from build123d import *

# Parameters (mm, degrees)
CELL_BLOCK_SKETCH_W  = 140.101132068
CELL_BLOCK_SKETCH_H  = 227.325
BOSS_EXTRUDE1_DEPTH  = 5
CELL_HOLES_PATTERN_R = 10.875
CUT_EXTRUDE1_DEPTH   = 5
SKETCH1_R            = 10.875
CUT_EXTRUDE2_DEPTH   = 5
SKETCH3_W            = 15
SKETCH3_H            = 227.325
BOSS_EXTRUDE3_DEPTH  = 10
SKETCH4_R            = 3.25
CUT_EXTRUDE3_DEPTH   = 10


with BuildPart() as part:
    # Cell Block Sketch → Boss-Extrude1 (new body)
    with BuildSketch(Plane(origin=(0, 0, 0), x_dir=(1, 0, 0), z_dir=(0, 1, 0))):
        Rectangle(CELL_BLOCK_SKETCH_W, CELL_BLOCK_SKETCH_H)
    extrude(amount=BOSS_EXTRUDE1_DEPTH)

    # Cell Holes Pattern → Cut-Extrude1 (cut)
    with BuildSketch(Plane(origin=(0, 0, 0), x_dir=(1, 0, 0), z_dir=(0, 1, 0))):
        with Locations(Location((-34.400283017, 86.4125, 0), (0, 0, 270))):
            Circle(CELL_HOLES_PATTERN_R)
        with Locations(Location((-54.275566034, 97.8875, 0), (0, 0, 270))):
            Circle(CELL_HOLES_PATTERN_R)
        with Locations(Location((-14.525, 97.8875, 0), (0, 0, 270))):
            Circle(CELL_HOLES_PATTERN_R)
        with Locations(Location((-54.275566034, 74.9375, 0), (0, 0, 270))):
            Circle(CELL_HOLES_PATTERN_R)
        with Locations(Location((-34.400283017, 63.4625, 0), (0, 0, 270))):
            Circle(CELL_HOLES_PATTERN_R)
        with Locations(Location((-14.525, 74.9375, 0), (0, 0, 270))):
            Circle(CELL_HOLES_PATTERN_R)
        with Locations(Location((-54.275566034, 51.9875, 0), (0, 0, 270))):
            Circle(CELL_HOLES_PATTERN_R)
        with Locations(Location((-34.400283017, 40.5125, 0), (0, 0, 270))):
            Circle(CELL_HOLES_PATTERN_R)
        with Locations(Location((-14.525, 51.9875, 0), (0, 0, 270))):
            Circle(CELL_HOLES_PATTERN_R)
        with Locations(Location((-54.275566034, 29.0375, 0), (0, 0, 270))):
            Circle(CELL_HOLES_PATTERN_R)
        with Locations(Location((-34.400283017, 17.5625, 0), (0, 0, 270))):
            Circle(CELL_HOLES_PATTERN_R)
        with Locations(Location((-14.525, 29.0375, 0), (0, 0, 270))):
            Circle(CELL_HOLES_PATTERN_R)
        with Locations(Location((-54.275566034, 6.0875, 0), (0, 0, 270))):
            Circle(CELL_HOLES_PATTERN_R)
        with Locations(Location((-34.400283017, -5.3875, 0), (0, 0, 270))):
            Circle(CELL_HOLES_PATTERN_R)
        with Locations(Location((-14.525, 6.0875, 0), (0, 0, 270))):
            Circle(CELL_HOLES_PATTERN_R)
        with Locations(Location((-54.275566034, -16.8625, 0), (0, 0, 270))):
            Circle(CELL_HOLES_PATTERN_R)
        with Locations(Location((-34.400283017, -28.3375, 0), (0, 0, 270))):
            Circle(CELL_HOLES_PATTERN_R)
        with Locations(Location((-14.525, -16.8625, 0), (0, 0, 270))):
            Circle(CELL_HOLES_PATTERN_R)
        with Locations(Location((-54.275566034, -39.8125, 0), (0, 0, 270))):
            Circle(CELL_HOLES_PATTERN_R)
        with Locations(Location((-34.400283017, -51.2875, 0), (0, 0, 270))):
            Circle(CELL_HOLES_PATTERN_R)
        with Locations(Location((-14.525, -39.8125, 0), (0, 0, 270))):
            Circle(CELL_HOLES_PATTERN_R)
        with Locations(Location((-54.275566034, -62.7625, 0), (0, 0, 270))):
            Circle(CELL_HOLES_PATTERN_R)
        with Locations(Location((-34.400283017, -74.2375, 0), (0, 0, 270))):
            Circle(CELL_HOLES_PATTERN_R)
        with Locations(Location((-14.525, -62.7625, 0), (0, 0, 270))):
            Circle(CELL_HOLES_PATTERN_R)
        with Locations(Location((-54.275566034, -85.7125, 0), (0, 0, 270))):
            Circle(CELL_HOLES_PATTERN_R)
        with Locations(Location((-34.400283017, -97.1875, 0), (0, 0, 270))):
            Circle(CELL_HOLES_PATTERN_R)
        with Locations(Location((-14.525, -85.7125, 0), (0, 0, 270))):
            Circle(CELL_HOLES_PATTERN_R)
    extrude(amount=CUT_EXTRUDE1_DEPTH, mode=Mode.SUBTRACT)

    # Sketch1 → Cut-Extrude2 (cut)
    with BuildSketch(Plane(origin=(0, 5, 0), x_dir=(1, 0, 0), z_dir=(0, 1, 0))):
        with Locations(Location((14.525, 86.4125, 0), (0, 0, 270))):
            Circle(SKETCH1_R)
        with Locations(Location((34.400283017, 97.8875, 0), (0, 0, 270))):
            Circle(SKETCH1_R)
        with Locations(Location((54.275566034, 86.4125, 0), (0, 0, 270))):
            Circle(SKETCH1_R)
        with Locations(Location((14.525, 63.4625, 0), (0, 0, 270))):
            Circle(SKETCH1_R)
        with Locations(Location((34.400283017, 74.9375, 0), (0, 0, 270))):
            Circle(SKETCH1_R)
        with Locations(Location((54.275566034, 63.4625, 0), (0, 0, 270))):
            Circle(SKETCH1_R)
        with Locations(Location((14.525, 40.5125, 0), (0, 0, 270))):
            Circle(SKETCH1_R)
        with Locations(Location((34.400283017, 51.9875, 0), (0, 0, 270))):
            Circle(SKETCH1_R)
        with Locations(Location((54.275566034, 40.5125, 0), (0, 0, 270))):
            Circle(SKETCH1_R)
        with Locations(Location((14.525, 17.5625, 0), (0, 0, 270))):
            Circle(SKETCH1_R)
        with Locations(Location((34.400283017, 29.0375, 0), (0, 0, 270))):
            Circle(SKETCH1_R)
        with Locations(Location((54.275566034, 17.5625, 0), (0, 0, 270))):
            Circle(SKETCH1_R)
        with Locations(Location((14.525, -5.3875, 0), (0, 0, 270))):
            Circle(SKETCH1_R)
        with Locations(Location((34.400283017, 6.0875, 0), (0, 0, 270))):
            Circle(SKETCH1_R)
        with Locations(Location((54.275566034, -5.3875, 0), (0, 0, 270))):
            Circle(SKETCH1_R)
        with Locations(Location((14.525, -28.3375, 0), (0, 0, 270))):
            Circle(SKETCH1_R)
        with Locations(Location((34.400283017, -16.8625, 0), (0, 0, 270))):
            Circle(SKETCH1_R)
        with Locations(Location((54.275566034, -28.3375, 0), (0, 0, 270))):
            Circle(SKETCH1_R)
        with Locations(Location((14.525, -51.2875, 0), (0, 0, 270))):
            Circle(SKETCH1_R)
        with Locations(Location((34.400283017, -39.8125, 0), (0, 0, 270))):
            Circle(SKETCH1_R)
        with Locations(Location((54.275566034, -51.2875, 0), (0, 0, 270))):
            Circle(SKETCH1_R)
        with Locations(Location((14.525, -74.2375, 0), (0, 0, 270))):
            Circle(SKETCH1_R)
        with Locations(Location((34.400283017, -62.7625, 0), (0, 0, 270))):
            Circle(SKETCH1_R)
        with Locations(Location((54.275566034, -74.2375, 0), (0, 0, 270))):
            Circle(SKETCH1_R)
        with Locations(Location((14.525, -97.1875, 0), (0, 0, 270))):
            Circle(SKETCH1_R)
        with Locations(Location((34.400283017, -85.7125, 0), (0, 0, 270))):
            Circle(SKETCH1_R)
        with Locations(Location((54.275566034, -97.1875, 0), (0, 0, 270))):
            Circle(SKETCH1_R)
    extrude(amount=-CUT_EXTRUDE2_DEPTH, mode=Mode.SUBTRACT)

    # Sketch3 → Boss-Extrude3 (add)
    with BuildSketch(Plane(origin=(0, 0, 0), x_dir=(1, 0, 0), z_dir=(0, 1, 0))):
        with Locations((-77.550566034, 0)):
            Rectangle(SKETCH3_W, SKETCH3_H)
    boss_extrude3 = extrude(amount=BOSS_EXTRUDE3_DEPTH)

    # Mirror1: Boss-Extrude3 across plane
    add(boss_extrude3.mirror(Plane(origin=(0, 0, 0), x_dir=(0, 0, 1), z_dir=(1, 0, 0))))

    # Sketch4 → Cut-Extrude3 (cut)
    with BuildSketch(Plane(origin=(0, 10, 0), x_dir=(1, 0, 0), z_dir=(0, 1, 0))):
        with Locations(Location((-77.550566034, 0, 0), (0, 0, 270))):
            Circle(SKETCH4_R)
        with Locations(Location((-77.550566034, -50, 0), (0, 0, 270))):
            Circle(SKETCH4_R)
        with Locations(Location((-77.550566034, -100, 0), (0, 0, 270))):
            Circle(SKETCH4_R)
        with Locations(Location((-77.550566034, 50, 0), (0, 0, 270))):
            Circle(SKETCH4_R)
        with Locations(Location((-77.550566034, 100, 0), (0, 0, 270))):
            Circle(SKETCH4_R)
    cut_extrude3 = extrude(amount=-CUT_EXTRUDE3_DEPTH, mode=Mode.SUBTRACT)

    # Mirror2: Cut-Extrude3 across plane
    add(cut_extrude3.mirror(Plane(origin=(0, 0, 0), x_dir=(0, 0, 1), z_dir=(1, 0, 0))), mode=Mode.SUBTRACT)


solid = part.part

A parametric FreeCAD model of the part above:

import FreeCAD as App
import Part
import Sketcher

V = App.Vector


def add_polygon(sketch, points):
    """Adds a closed chain of lines whose ends are joined by coincident constraints."""
    first, n = sketch.GeometryCount, len(points)
    for a, b in zip(points, points[1:] + points[:1]):
        sketch.addGeometry(Part.LineSegment(App.Vector(*a, 0), App.Vector(*b, 0)), False)
    for i in range(n):
        sketch.addConstraint(Sketcher.Constraint("Coincident", first + i, 2, first + (i + 1) % n, 1))

doc = App.newDocument("Part")
body = doc.addObject("PartDesign::Body", "Body")

# Sketch on XZ plane
sketch1 = body.newObject("Sketcher::SketchObject", "Sketch")
sketch1.AttachmentSupport = (doc.getObject("XZ_Plane"), [""])
sketch1.MapMode = "FlatFace"
add_polygon(sketch1, [(-70, -114), (-70, 114), (70, 114), (70, -114)])  # lines 0-3
sketch1.addConstraint([
    Sketcher.Constraint("Vertical", 0),
    Sketcher.Constraint("Horizontal", 1),
    Sketcher.Constraint("Vertical", 2),
    Sketcher.Constraint("Horizontal", 3),
    Sketcher.Constraint("Symmetric", 0, 2, 2, 2, -1, 1),
    Sketcher.Constraint("DistanceY", 0, 1, 0, 2, 227.325),
    Sketcher.Constraint("DistanceX", 1, 1, 1, 2, 140.101132),
])
pad1 = body.newObject("PartDesign::Pad", "Pad")
pad1.Profile = sketch1
pad1.Length = 5
pad1.Reversed = True

# Sketch on XZ plane
sketch2 = body.newObject("Sketcher::SketchObject", "Sketch001")
sketch2.AttachmentSupport = (doc.getObject("XZ_Plane"), [""])
sketch2.MapMode = "FlatFace"
sketch2.addGeometry([
    Part.Circle(V(-34, -86, 0), V(0, 0, 1), 11),  # 0
    Part.Circle(V(-54, -98, 0), V(0, 0, 1), 11),  # 1
    Part.Circle(V(-15, -98, 0), V(0, 0, 1), 11),  # 2
    Part.Circle(V(-54, -75, 0), V(0, 0, 1), 11),  # 3
    Part.Circle(V(-34, -63, 0), V(0, 0, 1), 11),  # 4
    Part.Circle(V(-15, -75, 0), V(0, 0, 1), 11),  # 5
    Part.Circle(V(-54, -52, 0), V(0, 0, 1), 11),  # 6
    Part.Circle(V(-34, -41, 0), V(0, 0, 1), 11),  # 7
    Part.Circle(V(-15, -52, 0), V(0, 0, 1), 11),  # 8
    Part.Circle(V(-54, -29, 0), V(0, 0, 1), 11),  # 9
    Part.Circle(V(-34, -18, 0), V(0, 0, 1), 11),  # 10
    Part.Circle(V(-15, -29, 0), V(0, 0, 1), 11),  # 11
    Part.Circle(V(-54, -6, 0), V(0, 0, 1), 11),  # 12
    Part.Circle(V(-34, 5, 0), V(0, 0, 1), 11),  # 13
    Part.Circle(V(-15, -6, 0), V(0, 0, 1), 11),  # 14
    Part.Circle(V(-54, 17, 0), V(0, 0, 1), 11),  # 15
    Part.Circle(V(-34, 28, 0), V(0, 0, 1), 11),  # 16
    Part.Circle(V(-15, 17, 0), V(0, 0, 1), 11),  # 17
    Part.Circle(V(-54, 40, 0), V(0, 0, 1), 11),  # 18
    Part.Circle(V(-34, 51, 0), V(0, 0, 1), 11),  # 19
    Part.Circle(V(-15, 40, 0), V(0, 0, 1), 11),  # 20
    Part.Circle(V(-54, 63, 0), V(0, 0, 1), 11),  # 21
    Part.Circle(V(-34, 74, 0), V(0, 0, 1), 11),  # 22
    Part.Circle(V(-15, 63, 0), V(0, 0, 1), 11),  # 23
    Part.Circle(V(-54, 86, 0), V(0, 0, 1), 11),  # 24
    Part.Circle(V(-34, 97, 0), V(0, 0, 1), 11),  # 25
    Part.Circle(V(-15, 86, 0), V(0, 0, 1), 11),  # 26
], False)
sketch2.addConstraint([
    Sketcher.Constraint("Equal", 0, 1),
    Sketcher.Constraint("Equal", 1, 2),
    Sketcher.Constraint("Equal", 2, 3),
    Sketcher.Constraint("Equal", 3, 4),
    Sketcher.Constraint("Equal", 4, 5),
    Sketcher.Constraint("Equal", 5, 6),
    Sketcher.Constraint("Equal", 6, 7),
    Sketcher.Constraint("Equal", 7, 8),
    Sketcher.Constraint("Equal", 8, 9),
    Sketcher.Constraint("Equal", 9, 10),
    Sketcher.Constraint("Equal", 10, 11),
    Sketcher.Constraint("Equal", 11, 12),
    Sketcher.Constraint("Equal", 12, 13),
    Sketcher.Constraint("Equal", 13, 14),
    Sketcher.Constraint("Equal", 14, 15),
    Sketcher.Constraint("Equal", 15, 16),
    Sketcher.Constraint("Equal", 16, 17),
    Sketcher.Constraint("Equal", 17, 18),
    Sketcher.Constraint("Equal", 18, 19),
    Sketcher.Constraint("Equal", 19, 20),
    Sketcher.Constraint("Equal", 20, 21),
    Sketcher.Constraint("Equal", 21, 22),
    Sketcher.Constraint("Equal", 22, 23),
    Sketcher.Constraint("Equal", 23, 24),
    Sketcher.Constraint("Equal", 24, 25),
    Sketcher.Constraint("Equal", 25, 26),
    Sketcher.Constraint("Horizontal", 1, 3, 2, 3),
    Sketcher.Constraint("Horizontal", 3, 3, 5, 3),
    Sketcher.Constraint("Horizontal", 6, 3, 8, 3),
    Sketcher.Constraint("Horizontal", 9, 3, 11, 3),
    Sketcher.Constraint("Horizontal", 12, 3, 14, 3),
    Sketcher.Constraint("Horizontal", 15, 3, 17, 3),
    Sketcher.Constraint("Horizontal", 18, 3, 20, 3),
    Sketcher.Constraint("Horizontal", 21, 3, 23, 3),
    Sketcher.Constraint("Horizontal", 24, 3, 26, 3),
    Sketcher.Constraint("Vertical", 1, 3, 3, 3),
    Sketcher.Constraint("Vertical", 0, 3, 4, 3),
    Sketcher.Constraint("Vertical", 2, 3, 5, 3),
    Sketcher.Constraint("Vertical", 3, 3, 6, 3),
    Sketcher.Constraint("Vertical", 4, 3, 7, 3),
    Sketcher.Constraint("Vertical", 5, 3, 8, 3),
    Sketcher.Constraint("Vertical", 6, 3, 9, 3),
    Sketcher.Constraint("Vertical", 7, 3, 10, 3),
    Sketcher.Constraint("Vertical", 8, 3, 11, 3),
    Sketcher.Constraint("Vertical", 9, 3, 12, 3),
    Sketcher.Constraint("Vertical", 10, 3, 13, 3),
    Sketcher.Constraint("Vertical", 11, 3, 14, 3),
    Sketcher.Constraint("Vertical", 12, 3, 15, 3),
    Sketcher.Constraint("Vertical", 13, 3, 16, 3),
    Sketcher.Constraint("Vertical", 14, 3, 17, 3),
    Sketcher.Constraint("Vertical", 15, 3, 18, 3),
    Sketcher.Constraint("Vertical", 16, 3, 19, 3),
    Sketcher.Constraint("Vertical", 17, 3, 20, 3),
    Sketcher.Constraint("Vertical", 18, 3, 21, 3),
    Sketcher.Constraint("Vertical", 19, 3, 22, 3),
    Sketcher.Constraint("Vertical", 20, 3, 23, 3),
    Sketcher.Constraint("Vertical", 21, 3, 24, 3),
    Sketcher.Constraint("Vertical", 22, 3, 25, 3),
    Sketcher.Constraint("Vertical", 23, 3, 26, 3),
    Sketcher.Constraint("Diameter", 0, 21.75),
    Sketcher.Constraint("DistanceY", 1, 3, 6, 3, 45.9),
    Sketcher.Constraint("DistanceY", 0, 3, 7, 3, 45.9),
    Sketcher.Constraint("DistanceY", 3, 3, 9, 3, 45.9),
    Sketcher.Constraint("DistanceY", 4, 3, 10, 3, 45.9),
    Sketcher.Constraint("DistanceY", 6, 3, 12, 3, 45.9),
    Sketcher.Constraint("DistanceY", 7, 3, 13, 3, 45.9),
    Sketcher.Constraint("DistanceY", 9, 3, 15, 3, 45.9),
    Sketcher.Constraint("DistanceY", 10, 3, 16, 3, 45.9),
    Sketcher.Constraint("DistanceY", 12, 3, 18, 3, 45.9),
    Sketcher.Constraint("DistanceY", 13, 3, 19, 3, 45.9),
    Sketcher.Constraint("DistanceY", 15, 3, 21, 3, 45.9),
    Sketcher.Constraint("DistanceY", 16, 3, 22, 3, 45.9),
    Sketcher.Constraint("DistanceY", 18, 3, 24, 3, 45.9),
    Sketcher.Constraint("DistanceY", 19, 3, 25, 3, 45.9),
    Sketcher.Constraint("DistanceY", 1, 3, 3, 3, 22.95),
    Sketcher.Constraint("DistanceY", 0, 3, 4, 3, 22.95),
    Sketcher.Constraint("DistanceX", 2, 3, -1, 1, 14.525),
    Sketcher.Constraint("DistanceY", 1, 3, 0, 3, 11.475),
    Sketcher.Constraint("DistanceY", 0, 3, -1, 1, 86.4125),
    Sketcher.Constraint("DistanceX", 0, 3, -1, 1, 34.400283),
    Sketcher.Constraint("DistanceX", 1, 3, -1, 1, 54.275566),
])
pocket1 = body.newObject("PartDesign::Pocket", "Pocket")
pocket1.Profile = sketch2
pocket1.Length = 5

# Sketch on XZ plane
sketch3 = body.newObject("Sketcher::SketchObject", "Sketch002")
sketch3.AttachmentSupport = (doc.getObject("XZ_Plane"), [""])
sketch3.MapMode = "FlatFace"
sketch3.AttachmentOffset = App.Placement(V(0, 0, -5), App.Rotation())
sketch3.addGeometry([
    Part.Circle(V(15, -86, 0), V(0, 0, 1), 11),  # 0
    Part.Circle(V(34, -98, 0), V(0, 0, 1), 11),  # 1
    Part.Circle(V(54, -86, 0), V(0, 0, 1), 11),  # 2
    Part.Circle(V(15, -63, 0), V(0, 0, 1), 11),  # 3
    Part.Circle(V(34, -75, 0), V(0, 0, 1), 11),  # 4
    Part.Circle(V(54, -63, 0), V(0, 0, 1), 11),  # 5
    Part.Circle(V(15, -41, 0), V(0, 0, 1), 11),  # 6
    Part.Circle(V(34, -52, 0), V(0, 0, 1), 11),  # 7
    Part.Circle(V(54, -41, 0), V(0, 0, 1), 11),  # 8
    Part.Circle(V(15, -18, 0), V(0, 0, 1), 11),  # 9
    Part.Circle(V(34, -29, 0), V(0, 0, 1), 11),  # 10
    Part.Circle(V(54, -18, 0), V(0, 0, 1), 11),  # 11
    Part.Circle(V(15, 5, 0), V(0, 0, 1), 11),  # 12
    Part.Circle(V(34, -6, 0), V(0, 0, 1), 11),  # 13
    Part.Circle(V(54, 5, 0), V(0, 0, 1), 11),  # 14
    Part.Circle(V(15, 28, 0), V(0, 0, 1), 11),  # 15
    Part.Circle(V(34, 17, 0), V(0, 0, 1), 11),  # 16
    Part.Circle(V(54, 28, 0), V(0, 0, 1), 11),  # 17
    Part.Circle(V(15, 51, 0), V(0, 0, 1), 11),  # 18
    Part.Circle(V(34, 40, 0), V(0, 0, 1), 11),  # 19
    Part.Circle(V(54, 51, 0), V(0, 0, 1), 11),  # 20
    Part.Circle(V(15, 74, 0), V(0, 0, 1), 11),  # 21
    Part.Circle(V(34, 63, 0), V(0, 0, 1), 11),  # 22
    Part.Circle(V(54, 74, 0), V(0, 0, 1), 11),  # 23
    Part.Circle(V(15, 97, 0), V(0, 0, 1), 11),  # 24
    Part.Circle(V(34, 86, 0), V(0, 0, 1), 11),  # 25
    Part.Circle(V(54, 97, 0), V(0, 0, 1), 11),  # 26
], False)
sketch3.addConstraint([
    Sketcher.Constraint("Equal", 0, 1),
    Sketcher.Constraint("Equal", 1, 2),
    Sketcher.Constraint("Equal", 2, 3),
    Sketcher.Constraint("Equal", 3, 4),
    Sketcher.Constraint("Equal", 4, 5),
    Sketcher.Constraint("Equal", 5, 6),
    Sketcher.Constraint("Equal", 6, 7),
    Sketcher.Constraint("Equal", 7, 8),
    Sketcher.Constraint("Equal", 8, 9),
    Sketcher.Constraint("Equal", 9, 10),
    Sketcher.Constraint("Equal", 10, 11),
    Sketcher.Constraint("Equal", 11, 12),
    Sketcher.Constraint("Equal", 12, 13),
    Sketcher.Constraint("Equal", 13, 14),
    Sketcher.Constraint("Equal", 14, 15),
    Sketcher.Constraint("Equal", 15, 16),
    Sketcher.Constraint("Equal", 16, 17),
    Sketcher.Constraint("Equal", 17, 18),
    Sketcher.Constraint("Equal", 18, 19),
    Sketcher.Constraint("Equal", 19, 20),
    Sketcher.Constraint("Equal", 20, 21),
    Sketcher.Constraint("Equal", 21, 22),
    Sketcher.Constraint("Equal", 22, 23),
    Sketcher.Constraint("Equal", 23, 24),
    Sketcher.Constraint("Equal", 24, 25),
    Sketcher.Constraint("Equal", 25, 26),
    Sketcher.Constraint("Horizontal", 0, 3, 2, 3),
    Sketcher.Constraint("Horizontal", 3, 3, 5, 3),
    Sketcher.Constraint("Horizontal", 6, 3, 8, 3),
    Sketcher.Constraint("Horizontal", 9, 3, 11, 3),
    Sketcher.Constraint("Horizontal", 12, 3, 14, 3),
    Sketcher.Constraint("Horizontal", 15, 3, 17, 3),
    Sketcher.Constraint("Horizontal", 18, 3, 20, 3),
    Sketcher.Constraint("Horizontal", 21, 3, 23, 3),
    Sketcher.Constraint("Horizontal", 24, 3, 26, 3),
    Sketcher.Constraint("Vertical", 0, 3, 3, 3),
    Sketcher.Constraint("Vertical", 1, 3, 4, 3),
    Sketcher.Constraint("Vertical", 2, 3, 5, 3),
    Sketcher.Constraint("Vertical", 3, 3, 6, 3),
    Sketcher.Constraint("Vertical", 4, 3, 7, 3),
    Sketcher.Constraint("Vertical", 5, 3, 8, 3),
    Sketcher.Constraint("Vertical", 6, 3, 9, 3),
    Sketcher.Constraint("Vertical", 7, 3, 10, 3),
    Sketcher.Constraint("Vertical", 8, 3, 11, 3),
    Sketcher.Constraint("Vertical", 9, 3, 12, 3),
    Sketcher.Constraint("Vertical", 10, 3, 13, 3),
    Sketcher.Constraint("Vertical", 11, 3, 14, 3),
    Sketcher.Constraint("Vertical", 12, 3, 15, 3),
    Sketcher.Constraint("Vertical", 13, 3, 16, 3),
    Sketcher.Constraint("Vertical", 14, 3, 17, 3),
    Sketcher.Constraint("Vertical", 15, 3, 18, 3),
    Sketcher.Constraint("Vertical", 16, 3, 19, 3),
    Sketcher.Constraint("Vertical", 17, 3, 20, 3),
    Sketcher.Constraint("Vertical", 18, 3, 21, 3),
    Sketcher.Constraint("Vertical", 19, 3, 22, 3),
    Sketcher.Constraint("Vertical", 20, 3, 23, 3),
    Sketcher.Constraint("Vertical", 21, 3, 24, 3),
    Sketcher.Constraint("Vertical", 22, 3, 25, 3),
    Sketcher.Constraint("Vertical", 23, 3, 26, 3),
    Sketcher.Constraint("Diameter", 0, 21.75),
    Sketcher.Constraint("DistanceY", 0, 3, 6, 3, 45.9),
    Sketcher.Constraint("DistanceY", 3, 3, 9, 3, 45.9),
    Sketcher.Constraint("DistanceY", 6, 3, 12, 3, 45.9),
    Sketcher.Constraint("DistanceY", 9, 3, 15, 3, 45.9),
    Sketcher.Constraint("DistanceY", 12, 3, 18, 3, 45.9),
    Sketcher.Constraint("DistanceY", 15, 3, 21, 3, 45.9),
    Sketcher.Constraint("DistanceY", 18, 3, 24, 3, 45.9),
    Sketcher.Constraint("DistanceY", 0, 3, 3, 3, 22.95),
    Sketcher.Constraint("DistanceY", 1, 3, 4, 3, 22.95),
    Sketcher.Constraint("DistanceY", 4, 3, 7, 3, 22.95),
    Sketcher.Constraint("DistanceY", 7, 3, 10, 3, 22.95),
    Sketcher.Constraint("DistanceY", 10, 3, 13, 3, 22.95),
    Sketcher.Constraint("DistanceY", 13, 3, 16, 3, 22.95),
    Sketcher.Constraint("DistanceY", 16, 3, 19, 3, 22.95),
    Sketcher.Constraint("DistanceY", 19, 3, 22, 3, 22.95),
    Sketcher.Constraint("DistanceY", 22, 3, 25, 3, 22.95),
    Sketcher.Constraint("DistanceX", -1, 1, 0, 3, 14.525),
    Sketcher.Constraint("DistanceY", 1, 3, 0, 3, 11.475),
    Sketcher.Constraint("DistanceY", 0, 3, -1, 1, 86.4125),
    Sketcher.Constraint("DistanceX", -1, 1, 1, 3, 34.400283),
    Sketcher.Constraint("DistanceX", -1, 1, 2, 3, 54.275566),
])
pocket2 = body.newObject("PartDesign::Pocket", "Pocket001")
pocket2.Profile = sketch3
pocket2.Length = 5
pocket2.Reversed = True

# Sketch on XZ plane
sketch4 = body.newObject("Sketcher::SketchObject", "Sketch003")
sketch4.AttachmentSupport = (doc.getObject("XZ_Plane"), [""])
sketch4.MapMode = "FlatFace"
add_polygon(sketch4, [(-85, -114), (-85, 114), (-70, 114), (-70, -114)])  # lines 0-3
sketch4.addConstraint([
    Sketcher.Constraint("Vertical", 0),
    Sketcher.Constraint("Horizontal", 1),
    Sketcher.Constraint("Vertical", 2),
    Sketcher.Constraint("Horizontal", 3),
    Sketcher.Constraint("DistanceX", 1, 1, 1, 2, 15.0),
    Sketcher.Constraint("DistanceY", 0, 1, 0, 2, 227.325),
    Sketcher.Constraint("DistanceY", -1, 1, 0, 2, 113.6625),
    Sketcher.Constraint("DistanceX", 0, 2, -1, 1, 85.050566),
])
pad2 = body.newObject("PartDesign::Pad", "Pad001")
pad2.Profile = sketch4
pad2.Length = 10
pad2.Reversed = True
doc.recompute()

mirrored = body.newObject("PartDesign::Mirrored", "Mirrored")
mirrored.Originals = [pad2]
mirrored.MirrorPlane = (doc.getObject("YZ_Plane"), [""])
body.Tip = mirrored

# Sketch on XZ plane
sketch5 = body.newObject("Sketcher::SketchObject", "Sketch004")
sketch5.AttachmentSupport = (doc.getObject("XZ_Plane"), [""])
sketch5.MapMode = "FlatFace"
sketch5.AttachmentOffset = App.Placement(V(0, 0, -10), App.Rotation())
sketch5.addGeometry([
    Part.Circle(V(-77.6, 0, 0), V(0, 0, 1), 3.2),  # 0
    Part.Circle(V(-77.6, 50, 0), V(0, 0, 1), 3.2),  # 1
    Part.Circle(V(-77.6, 100, 0), V(0, 0, 1), 3.2),  # 2
    Part.Circle(V(-77.6, -50, 0), V(0, 0, 1), 3.2),  # 3
    Part.Circle(V(-77.6, -100, 0), V(0, 0, 1), 3.2),  # 4
], False)
sketch5.addConstraint([
    Sketcher.Constraint("Equal", 0, 1),
    Sketcher.Constraint("Equal", 1, 2),
    Sketcher.Constraint("Equal", 2, 3),
    Sketcher.Constraint("Equal", 3, 4),
    Sketcher.Constraint("Symmetric", 1, 3, 3, 3, -1),
    Sketcher.Constraint("Symmetric", 2, 3, 4, 3, -1),
    Sketcher.Constraint("PointOnObject", 0, 3, -1),
    Sketcher.Constraint("Vertical", 0, 3, 1, 3),
    Sketcher.Constraint("Vertical", 1, 3, 2, 3),
    Sketcher.Constraint("Diameter", 0, 6.5),
    Sketcher.Constraint("DistanceY", -1, 1, 1, 3, 50.0),
    Sketcher.Constraint("DistanceY", -1, 1, 2, 3, 100.0),
    Sketcher.Constraint("DistanceX", 0, 3, -1, 1, 77.550566),
])
pocket3 = body.newObject("PartDesign::Pocket", "Pocket002")
pocket3.Profile = sketch5
pocket3.Length = 10
pocket3.Reversed = True
doc.recompute()

mirrored2 = body.newObject("PartDesign::Mirrored", "Mirrored001")
mirrored2.Originals = [pocket3]
mirrored2.MirrorPlane = (doc.getObject("YZ_Plane"), [""])
body.Tip = mirrored2

doc.recompute()
